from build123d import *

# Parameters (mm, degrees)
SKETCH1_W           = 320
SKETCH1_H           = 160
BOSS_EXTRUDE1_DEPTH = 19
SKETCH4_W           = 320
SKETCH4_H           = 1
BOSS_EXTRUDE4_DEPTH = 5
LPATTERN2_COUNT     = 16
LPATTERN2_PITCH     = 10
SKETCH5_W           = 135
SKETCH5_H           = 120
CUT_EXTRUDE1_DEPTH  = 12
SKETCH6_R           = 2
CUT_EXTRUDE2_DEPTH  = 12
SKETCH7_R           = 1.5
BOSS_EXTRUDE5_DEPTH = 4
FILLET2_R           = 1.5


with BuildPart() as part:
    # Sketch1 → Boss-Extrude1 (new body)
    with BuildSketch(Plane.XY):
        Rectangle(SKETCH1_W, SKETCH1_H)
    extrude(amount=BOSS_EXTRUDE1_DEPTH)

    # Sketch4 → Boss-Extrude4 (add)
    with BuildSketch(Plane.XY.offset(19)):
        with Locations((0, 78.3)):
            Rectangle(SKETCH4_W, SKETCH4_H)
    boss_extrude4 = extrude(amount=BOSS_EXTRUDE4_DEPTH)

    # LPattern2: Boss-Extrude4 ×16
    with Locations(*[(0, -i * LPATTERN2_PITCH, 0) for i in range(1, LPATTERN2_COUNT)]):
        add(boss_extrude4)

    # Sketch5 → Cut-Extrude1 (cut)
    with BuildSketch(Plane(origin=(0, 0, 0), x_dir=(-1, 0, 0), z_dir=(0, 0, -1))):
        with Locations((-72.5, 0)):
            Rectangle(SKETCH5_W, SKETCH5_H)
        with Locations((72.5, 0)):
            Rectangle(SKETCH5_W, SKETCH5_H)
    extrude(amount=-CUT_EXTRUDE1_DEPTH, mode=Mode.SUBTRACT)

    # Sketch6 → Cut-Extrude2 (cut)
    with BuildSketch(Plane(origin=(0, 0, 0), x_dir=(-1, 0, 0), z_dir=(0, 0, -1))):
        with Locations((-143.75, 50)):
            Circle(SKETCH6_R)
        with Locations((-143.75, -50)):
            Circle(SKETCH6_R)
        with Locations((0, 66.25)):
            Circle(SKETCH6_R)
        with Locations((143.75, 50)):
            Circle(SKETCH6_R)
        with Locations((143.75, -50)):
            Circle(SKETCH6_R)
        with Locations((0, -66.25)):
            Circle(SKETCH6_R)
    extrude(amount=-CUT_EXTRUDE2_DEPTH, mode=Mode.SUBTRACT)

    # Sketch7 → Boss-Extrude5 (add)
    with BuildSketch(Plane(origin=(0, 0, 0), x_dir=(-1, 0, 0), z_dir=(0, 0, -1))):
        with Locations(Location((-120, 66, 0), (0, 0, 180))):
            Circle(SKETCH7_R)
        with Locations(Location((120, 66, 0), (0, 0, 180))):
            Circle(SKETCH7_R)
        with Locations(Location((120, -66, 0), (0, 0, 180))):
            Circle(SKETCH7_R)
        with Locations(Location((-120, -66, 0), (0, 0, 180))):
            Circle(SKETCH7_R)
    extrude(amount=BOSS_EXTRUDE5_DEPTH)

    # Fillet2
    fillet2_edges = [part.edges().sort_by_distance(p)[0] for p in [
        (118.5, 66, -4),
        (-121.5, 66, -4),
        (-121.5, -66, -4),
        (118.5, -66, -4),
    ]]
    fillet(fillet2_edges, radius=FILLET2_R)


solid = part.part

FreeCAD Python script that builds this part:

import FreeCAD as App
import Part
import Sketcher

V = App.Vector


def edges_at(feature, points):
    """Names of the edges that pass closest to the given points."""
    edges = feature.Shape.Edges
    near = lambda p: min(range(len(edges)), key=lambda i: edges[i].distToShape(Part.Vertex(*p))[0])
    return sorted({f"Edge{near(p) + 1}" for p in points})


def add_polygon(sketch, points):
    """Adds a closed chain of lines whose ends are joined by coincident constraints."""
    first, n = sketch.GeometryCount, len(points)
    for a, b in zip(points, points[1:] + points[:1]):
        sketch.addGeometry(Part.LineSegment(App.Vector(*a, 0), App.Vector(*b, 0)), False)
    for i in range(n):
        sketch.addConstraint(Sketcher.Constraint("Coincident", first + i, 2, first + (i + 1) % n, 1))

doc = App.newDocument("Part")
params = doc.addObject("Spreadsheet::Sheet", "Params")
for row, (alias, value) in enumerate([
    ("sketch1_width", "320 mm"),
    ("sketch1_height", "160 mm"),
    ("pad1_length", "19 mm"),
    ("sketch2_width", "320 mm"),
    ("sketch2_height", "1 mm"),
    ("pad2_length", "5 mm"),
    ("linearpattern_pitch", "10 mm"),
    ("sketch3_width", "135 mm"),
    ("sketch3_height", "120 mm"),
    ("pocket1_length", "12 mm"),
    ("sketch4_diameter", "4 mm"),
    ("pocket2_length", "12 mm"),
    ("sketch5_diameter", "3 mm"),
    ("pad3_length", "4 mm"),
    ("fillet_radius", "1.5 mm"),
], start=1):
    params.set(f"A{row}", alias)
    params.set(f"B{row}", "=" + value)
    params.setAlias(f"B{row}", alias)

body = doc.addObject("PartDesign::Body", "Body")

# Sketch on XY plane
sketch1 = body.newObject("Sketcher::SketchObject", "Sketch")
sketch1.AttachmentSupport = (doc.getObject("XY_Plane"), [""])
sketch1.MapMode = "FlatFace"
add_polygon(sketch1, [(-160, 80), (-160, -80), (160, -80), (160, 80)])  # lines 0-3
sketch1.addConstraint(Sketcher.Constraint("Vertical", 0))
sketch1.addConstraint(Sketcher.Constraint("Horizontal", 1))
sketch1.addConstraint(Sketcher.Constraint("Vertical", 2))
sketch1.addConstraint(Sketcher.Constraint("Horizontal", 3))
sketch1.addConstraint(Sketcher.Constraint("Symmetric", 0, 2, 2, 2, -1, 1))
sketch1.addConstraint(Sketcher.Constraint("DistanceX", 1, 1, 1, 2, 320.0))
sketch1.addConstraint(Sketcher.Constraint("DistanceY", 0, 2, 0, 1, 160.0))
sketch1.setExpression("Constraints[9]", "Params.sketch1_width")
sketch1.setExpression("Constraints[10]", "Params.sketch1_height")
pad1 = body.newObject("PartDesign::Pad", "Pad")
pad1.Profile = sketch1
pad1.setExpression("Length", "Params.pad1_length")

# Sketch on XY plane
sketch2 = body.newObject("Sketcher::SketchObject", "Sketch001")
sketch2.AttachmentSupport = (doc.getObject("XY_Plane"), [""])
sketch2.MapMode = "FlatFace"
sketch2.AttachmentOffset = App.Placement(V(0, 0, 19), App.Rotation())
add_polygon(sketch2, [(-160, 78.8), (-160, 77.8), (160, 77.8), (160, 78.8)])  # lines 0-3
sketch2.addConstraint(Sketcher.Constraint("Vertical", 0))
sketch2.addConstraint(Sketcher.Constraint("Horizontal", 1))
sketch2.addConstraint(Sketcher.Constraint("Vertical", 2))
sketch2.addConstraint(Sketcher.Constraint("Horizontal", 3))
sketch2.addConstraint(Sketcher.Constraint("DistanceX", 1, 1, 1, 2, 320.0))
sketch2.addConstraint(Sketcher.Constraint("DistanceY", 0, 2, 0, 1, 1.0))
sketch2.addConstraint(Sketcher.Constraint("DistanceX", 0, 2, -1, 1, 160.0))
sketch2.addConstraint(Sketcher.Constraint("DistanceY", -1, 1, 0, 2, 77.8))
sketch2.setExpression("Constraints[8]", "Params.sketch2_width")
sketch2.setExpression("Constraints[9]", "Params.sketch2_height")
pad2 = body.newObject("PartDesign::Pad", "Pad001")
pad2.Profile = sketch2
pad2.setExpression("Length", "Params.pad2_length")
doc.recompute()

linearpattern = body.newObject("PartDesign::LinearPattern", "LinearPattern")
linearpattern.Originals = [pad2]
linearpattern.Direction = (doc.getObject("Y_Axis"), [""])
linearpattern.Mode = "offset"
linearpattern.setExpression("Offset", "Params.linearpattern_pitch")
linearpattern.Occurrences = 16
linearpattern.Reversed = True
body.Tip = linearpattern

# Sketch on XY plane
sketch3 = body.newObject("Sketcher::SketchObject", "Sketch002")
sketch3.AttachmentSupport = (doc.getObject("XY_Plane"), [""])
sketch3.MapMode = "FlatFace"
add_polygon(sketch3, [(140, 60), (140, -60), (5, -60), (5, 60)])  # lines 0-3
add_polygon(sketch3, [(-5, 60), (-5, -60), (-140, -60), (-140, 60)])  # lines 4-7
sketch3.addConstraint(Sketcher.Constraint("Vertical", 0))
sketch3.addConstraint(Sketcher.Constraint("Horizontal", 1))
sketch3.addConstraint(Sketcher.Constraint("Vertical", 2))
sketch3.addConstraint(Sketcher.Constraint("Horizontal", 3))
sketch3.addConstraint(Sketcher.Constraint("Vertical", 4))
sketch3.addConstraint(Sketcher.Constraint("Horizontal", 5))
sketch3.addConstraint(Sketcher.Constraint("Vertical", 6))
sketch3.addConstraint(Sketcher.Constraint("Horizontal", 7))
sketch3.addConstraint(Sketcher.Constraint("Symmetric", 2, 2, 4, 2, -1, 1))
sketch3.addConstraint(Sketcher.Constraint("Symmetric", 0, 2, 6, 2, -1, 1))
sketch3.addConstraint(Sketcher.Constraint("Horizontal", 1, 2, 4, 2))
sketch3.addConstraint(Sketcher.Constraint("DistanceX", 1, 2, 1, 1, 135.0))
sketch3.addConstraint(Sketcher.Constraint("DistanceY", 0, 2, 0, 1, 120.0))
sketch3.addConstraint(Sketcher.Constraint("DistanceX", -1, 1, 0, 2, 140.0))
sketch3.setExpression("Constraints[19]", "Params.sketch3_width")
sketch3.setExpression("Constraints[20]", "Params.sketch3_height")
pocket1 = body.newObject("PartDesign::Pocket", "Pocket")
pocket1.Profile = sketch3
pocket1.setExpression("Length", "Params.pocket1_length")
pocket1.Reversed = True

# Sketch on XY plane
sketch4 = body.newObject("Sketcher::SketchObject", "Sketch003")
sketch4.AttachmentSupport = (doc.getObject("XY_Plane"), [""])
sketch4.MapMode = "FlatFace"
sketch4.addGeometry(Part.Circle(V(143.8, 50, 0), V(0, 0, 1), 2), False)
sketch4.addGeometry(Part.Circle(V(143.8, -50, 0), V(0, 0, 1), 2), False)
sketch4.addGeometry(Part.Circle(V(0, 66.2, 0), V(0, 0, 1), 2), False)
sketch4.addGeometry(Part.Circle(V(-143.8, 50, 0), V(0, 0, 1), 2), False)
sketch4.addGeometry(Part.Circle(V(-143.8, -50, 0), V(0, 0, 1), 2), False)
sketch4.addGeometry(Part.Circle(V(0, -66.2, 0), V(0, 0, 1), 2), False)
sketch4.addConstraint(Sketcher.Constraint("Equal", 0, 1))
sketch4.addConstraint(Sketcher.Constraint("Equal", 1, 2))
sketch4.addConstraint(Sketcher.Constraint("Equal", 2, 3))
sketch4.addConstraint(Sketcher.Constraint("Equal", 3, 4))
sketch4.addConstraint(Sketcher.Constraint("Equal", 4, 5))
sketch4.addConstraint(Sketcher.Constraint("Symmetric", 1, 3, 3, 3, -1, 1))
sketch4.addConstraint(Sketcher.Constraint("Symmetric", 0, 3, 4, 3, -1, 1))
sketch4.addConstraint(Sketcher.Constraint("Symmetric", 2, 3, 5, 3, -1, 1))
sketch4.addConstraint(Sketcher.Constraint("Symmetric", 0, 3, 3, 3, -2))
sketch4.addConstraint(Sketcher.Constraint("PointOnObject", 2, 3, -2))
sketch4.addConstraint(Sketcher.Constraint("Diameter", 0, 4.0))
sketch4.addConstraint(Sketcher.Constraint("DistanceY", -1, 1, 0, 3, 50.0))
sketch4.addConstraint(Sketcher.Constraint("DistanceX", 3, 3, 0, 3, 287.5))
sketch4.addConstraint(Sketcher.Constraint("DistanceY", 5, 3, 2, 3, 132.5))
sketch4.setExpression("Constraints[10]", "Params.sketch4_diameter")
pocket2 = body.newObject("PartDesign::Pocket", "Pocket001")
pocket2.Profile = sketch4
pocket2.setExpression("Length", "Params.pocket2_length")
pocket2.Reversed = True

# Sketch on XY plane
sketch5 = body.newObject("Sketcher::SketchObject", "Sketch004")
sketch5.AttachmentSupport = (doc.getObject("XY_Plane"), [""])
sketch5.MapMode = "FlatFace"
sketch5.addGeometry(Part.Circle(V(120, 66, 0), V(0, 0, 1), 1.5), False)
sketch5.addGeometry(Part.Circle(V(-120, 66, 0), V(0, 0, 1), 1.5), False)
sketch5.addGeometry(Part.Circle(V(-120, -66, 0), V(0, 0, 1), 1.5), False)
sketch5.addGeometry(Part.Circle(V(120, -66, 0), V(0, 0, 1), 1.5), False)
sketch5.addConstraint(Sketcher.Constraint("Equal", 0, 1))
sketch5.addConstraint(Sketcher.Constraint("Equal", 1, 2))
sketch5.addConstraint(Sketcher.Constraint("Equal", 2, 3))
sketch5.addConstraint(Sketcher.Constraint("Symmetric", 0, 3, 2, 3, -1, 1))
sketch5.addConstraint(Sketcher.Constraint("Symmetric", 1, 3, 3, 3, -1, 1))
sketch5.addConstraint(Sketcher.Constraint("Symmetric", 0, 3, 1, 3, -2))
sketch5.addConstraint(Sketcher.Constraint("Diameter", 0, 3.0))
sketch5.addConstraint(Sketcher.Constraint("DistanceX", -1, 1, 0, 3, 120.0))
sketch5.addConstraint(Sketcher.Constraint("DistanceY", -1, 1, 0, 3, 66.0))
sketch5.setExpression("Constraints[6]", "Params.sketch5_diameter")
pad3 = body.newObject("PartDesign::Pad", "Pad002")
pad3.Profile = sketch5
pad3.setExpression("Length", "Params.pad3_length")
pad3.Reversed = True
doc.recompute()

fillet = body.newObject("PartDesign::Fillet", "Fillet")
fillet.Base = (pad3, edges_at(pad3, [
    (118.5, 66, -4),
    (-121.5, 66, -4),
    (-121.5, -66, -4),
    (118.5, -66, -4),
]))
fillet.setExpression("Radius", "Params.fillet_radius")

doc.recompute()
